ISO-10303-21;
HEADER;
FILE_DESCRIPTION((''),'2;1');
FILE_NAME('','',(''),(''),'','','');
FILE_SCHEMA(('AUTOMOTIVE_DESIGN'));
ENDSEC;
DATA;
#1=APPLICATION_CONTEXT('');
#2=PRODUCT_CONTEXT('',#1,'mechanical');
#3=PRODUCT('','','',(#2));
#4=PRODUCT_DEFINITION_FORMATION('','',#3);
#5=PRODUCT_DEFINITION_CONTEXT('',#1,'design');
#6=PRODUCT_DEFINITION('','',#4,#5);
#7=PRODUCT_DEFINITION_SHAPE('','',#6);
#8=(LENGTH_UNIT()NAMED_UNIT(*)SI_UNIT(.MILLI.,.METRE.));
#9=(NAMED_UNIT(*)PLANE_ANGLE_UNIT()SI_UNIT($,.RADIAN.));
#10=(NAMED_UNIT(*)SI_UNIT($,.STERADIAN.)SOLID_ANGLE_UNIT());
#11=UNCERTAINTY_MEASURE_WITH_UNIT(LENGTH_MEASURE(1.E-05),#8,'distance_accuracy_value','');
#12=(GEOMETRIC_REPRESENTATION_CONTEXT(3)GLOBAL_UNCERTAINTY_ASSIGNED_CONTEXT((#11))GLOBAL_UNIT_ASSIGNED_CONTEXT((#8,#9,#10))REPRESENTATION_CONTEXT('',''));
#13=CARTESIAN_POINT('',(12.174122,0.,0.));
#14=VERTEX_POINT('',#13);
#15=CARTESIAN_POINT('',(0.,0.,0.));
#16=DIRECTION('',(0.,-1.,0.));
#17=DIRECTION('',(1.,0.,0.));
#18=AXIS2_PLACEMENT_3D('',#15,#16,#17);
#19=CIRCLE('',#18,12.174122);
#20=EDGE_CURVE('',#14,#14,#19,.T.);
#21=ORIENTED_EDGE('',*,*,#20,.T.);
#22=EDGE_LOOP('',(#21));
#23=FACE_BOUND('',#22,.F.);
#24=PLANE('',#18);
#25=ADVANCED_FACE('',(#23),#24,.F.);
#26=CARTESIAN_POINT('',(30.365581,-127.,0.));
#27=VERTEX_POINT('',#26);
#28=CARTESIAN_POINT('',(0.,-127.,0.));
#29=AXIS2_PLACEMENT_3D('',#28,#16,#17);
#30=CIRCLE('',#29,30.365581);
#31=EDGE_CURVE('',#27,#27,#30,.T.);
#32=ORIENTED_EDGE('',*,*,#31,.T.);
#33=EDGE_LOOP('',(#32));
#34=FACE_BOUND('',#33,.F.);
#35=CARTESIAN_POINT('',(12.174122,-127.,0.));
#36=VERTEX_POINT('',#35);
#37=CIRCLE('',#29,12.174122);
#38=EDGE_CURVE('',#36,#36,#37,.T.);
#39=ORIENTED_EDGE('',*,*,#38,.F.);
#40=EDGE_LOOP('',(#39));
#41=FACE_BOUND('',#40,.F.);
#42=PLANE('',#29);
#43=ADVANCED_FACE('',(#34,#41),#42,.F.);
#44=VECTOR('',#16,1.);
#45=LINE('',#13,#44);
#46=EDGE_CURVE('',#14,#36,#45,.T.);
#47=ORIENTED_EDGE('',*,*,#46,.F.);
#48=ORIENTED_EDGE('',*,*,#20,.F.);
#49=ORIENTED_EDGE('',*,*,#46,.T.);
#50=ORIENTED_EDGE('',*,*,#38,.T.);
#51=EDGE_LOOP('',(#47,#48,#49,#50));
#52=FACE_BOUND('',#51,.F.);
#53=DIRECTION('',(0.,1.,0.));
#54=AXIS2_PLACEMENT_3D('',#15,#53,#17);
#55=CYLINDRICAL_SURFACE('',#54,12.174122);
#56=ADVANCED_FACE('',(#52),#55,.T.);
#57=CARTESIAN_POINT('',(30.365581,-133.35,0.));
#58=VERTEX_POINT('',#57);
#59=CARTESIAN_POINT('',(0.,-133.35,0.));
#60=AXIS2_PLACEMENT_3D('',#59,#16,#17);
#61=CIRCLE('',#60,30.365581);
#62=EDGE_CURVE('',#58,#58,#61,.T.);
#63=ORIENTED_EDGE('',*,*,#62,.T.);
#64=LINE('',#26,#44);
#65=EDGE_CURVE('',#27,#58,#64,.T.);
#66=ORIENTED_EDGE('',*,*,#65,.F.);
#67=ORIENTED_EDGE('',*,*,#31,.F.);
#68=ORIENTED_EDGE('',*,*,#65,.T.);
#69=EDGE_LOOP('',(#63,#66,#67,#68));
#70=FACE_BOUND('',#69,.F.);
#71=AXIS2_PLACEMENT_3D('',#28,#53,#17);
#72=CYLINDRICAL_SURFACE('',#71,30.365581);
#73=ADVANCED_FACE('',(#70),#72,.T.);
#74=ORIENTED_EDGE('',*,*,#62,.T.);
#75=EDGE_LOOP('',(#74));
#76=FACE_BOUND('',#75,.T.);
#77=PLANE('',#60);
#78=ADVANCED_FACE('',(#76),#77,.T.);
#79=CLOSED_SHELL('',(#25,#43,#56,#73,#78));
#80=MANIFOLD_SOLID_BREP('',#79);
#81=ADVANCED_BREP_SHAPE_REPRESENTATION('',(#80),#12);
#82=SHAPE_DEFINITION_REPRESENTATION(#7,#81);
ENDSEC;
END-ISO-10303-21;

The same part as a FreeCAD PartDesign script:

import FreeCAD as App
import Part
import Sketcher
Q = App.Units.Quantity

doc = App.newDocument("Part")
body = doc.addObject("PartDesign::Body", "Body")

# Sketch on XZ plane
sketch1 = body.newObject("Sketcher::SketchObject", "Sketch")
sketch1.AttachmentSupport = (doc.getObject("XZ_Plane"), [""])
sketch1.MapMode = "FlatFace"
sketch1.addGeometry(Part.Circle(App.Vector(0, 0, 0), App.Vector(0, 0, 1), 12), False)
sketch1.addConstraint(Sketcher.Constraint("Coincident", 0, 3, -1, 1))
sketch1.addConstraint(Sketcher.Constraint("Diameter", 0, Q("24.348244 mm")))
pad1 = body.newObject("PartDesign::Pad", "Pad")
pad1.Profile = sketch1
pad1.Length = Q("5 in")

# Sketch on XZ plane
sketch2 = body.newObject("Sketcher::SketchObject", "Sketch001")
sketch2.AttachmentSupport = (doc.getObject("XZ_Plane"), [""])
sketch2.MapMode = "FlatFace"
sketch2.AttachmentOffset = App.Placement(App.Vector(0, 0, 5 * 25.4), App.Rotation())
sketch2.addGeometry(Part.Circle(App.Vector(0, 0, 0), App.Vector(0, 0, 1), 30), False)
sketch2.addConstraint(Sketcher.Constraint("Coincident", 0, 3, -1, 1))
sketch2.addConstraint(Sketcher.Constraint("Diameter", 0, Q("60.731162 mm")))
pad2 = body.newObject("PartDesign::Pad", "Pad001")
pad2.Profile = sketch2
pad2.Length = Q("0.25 in")

doc.recompute()
